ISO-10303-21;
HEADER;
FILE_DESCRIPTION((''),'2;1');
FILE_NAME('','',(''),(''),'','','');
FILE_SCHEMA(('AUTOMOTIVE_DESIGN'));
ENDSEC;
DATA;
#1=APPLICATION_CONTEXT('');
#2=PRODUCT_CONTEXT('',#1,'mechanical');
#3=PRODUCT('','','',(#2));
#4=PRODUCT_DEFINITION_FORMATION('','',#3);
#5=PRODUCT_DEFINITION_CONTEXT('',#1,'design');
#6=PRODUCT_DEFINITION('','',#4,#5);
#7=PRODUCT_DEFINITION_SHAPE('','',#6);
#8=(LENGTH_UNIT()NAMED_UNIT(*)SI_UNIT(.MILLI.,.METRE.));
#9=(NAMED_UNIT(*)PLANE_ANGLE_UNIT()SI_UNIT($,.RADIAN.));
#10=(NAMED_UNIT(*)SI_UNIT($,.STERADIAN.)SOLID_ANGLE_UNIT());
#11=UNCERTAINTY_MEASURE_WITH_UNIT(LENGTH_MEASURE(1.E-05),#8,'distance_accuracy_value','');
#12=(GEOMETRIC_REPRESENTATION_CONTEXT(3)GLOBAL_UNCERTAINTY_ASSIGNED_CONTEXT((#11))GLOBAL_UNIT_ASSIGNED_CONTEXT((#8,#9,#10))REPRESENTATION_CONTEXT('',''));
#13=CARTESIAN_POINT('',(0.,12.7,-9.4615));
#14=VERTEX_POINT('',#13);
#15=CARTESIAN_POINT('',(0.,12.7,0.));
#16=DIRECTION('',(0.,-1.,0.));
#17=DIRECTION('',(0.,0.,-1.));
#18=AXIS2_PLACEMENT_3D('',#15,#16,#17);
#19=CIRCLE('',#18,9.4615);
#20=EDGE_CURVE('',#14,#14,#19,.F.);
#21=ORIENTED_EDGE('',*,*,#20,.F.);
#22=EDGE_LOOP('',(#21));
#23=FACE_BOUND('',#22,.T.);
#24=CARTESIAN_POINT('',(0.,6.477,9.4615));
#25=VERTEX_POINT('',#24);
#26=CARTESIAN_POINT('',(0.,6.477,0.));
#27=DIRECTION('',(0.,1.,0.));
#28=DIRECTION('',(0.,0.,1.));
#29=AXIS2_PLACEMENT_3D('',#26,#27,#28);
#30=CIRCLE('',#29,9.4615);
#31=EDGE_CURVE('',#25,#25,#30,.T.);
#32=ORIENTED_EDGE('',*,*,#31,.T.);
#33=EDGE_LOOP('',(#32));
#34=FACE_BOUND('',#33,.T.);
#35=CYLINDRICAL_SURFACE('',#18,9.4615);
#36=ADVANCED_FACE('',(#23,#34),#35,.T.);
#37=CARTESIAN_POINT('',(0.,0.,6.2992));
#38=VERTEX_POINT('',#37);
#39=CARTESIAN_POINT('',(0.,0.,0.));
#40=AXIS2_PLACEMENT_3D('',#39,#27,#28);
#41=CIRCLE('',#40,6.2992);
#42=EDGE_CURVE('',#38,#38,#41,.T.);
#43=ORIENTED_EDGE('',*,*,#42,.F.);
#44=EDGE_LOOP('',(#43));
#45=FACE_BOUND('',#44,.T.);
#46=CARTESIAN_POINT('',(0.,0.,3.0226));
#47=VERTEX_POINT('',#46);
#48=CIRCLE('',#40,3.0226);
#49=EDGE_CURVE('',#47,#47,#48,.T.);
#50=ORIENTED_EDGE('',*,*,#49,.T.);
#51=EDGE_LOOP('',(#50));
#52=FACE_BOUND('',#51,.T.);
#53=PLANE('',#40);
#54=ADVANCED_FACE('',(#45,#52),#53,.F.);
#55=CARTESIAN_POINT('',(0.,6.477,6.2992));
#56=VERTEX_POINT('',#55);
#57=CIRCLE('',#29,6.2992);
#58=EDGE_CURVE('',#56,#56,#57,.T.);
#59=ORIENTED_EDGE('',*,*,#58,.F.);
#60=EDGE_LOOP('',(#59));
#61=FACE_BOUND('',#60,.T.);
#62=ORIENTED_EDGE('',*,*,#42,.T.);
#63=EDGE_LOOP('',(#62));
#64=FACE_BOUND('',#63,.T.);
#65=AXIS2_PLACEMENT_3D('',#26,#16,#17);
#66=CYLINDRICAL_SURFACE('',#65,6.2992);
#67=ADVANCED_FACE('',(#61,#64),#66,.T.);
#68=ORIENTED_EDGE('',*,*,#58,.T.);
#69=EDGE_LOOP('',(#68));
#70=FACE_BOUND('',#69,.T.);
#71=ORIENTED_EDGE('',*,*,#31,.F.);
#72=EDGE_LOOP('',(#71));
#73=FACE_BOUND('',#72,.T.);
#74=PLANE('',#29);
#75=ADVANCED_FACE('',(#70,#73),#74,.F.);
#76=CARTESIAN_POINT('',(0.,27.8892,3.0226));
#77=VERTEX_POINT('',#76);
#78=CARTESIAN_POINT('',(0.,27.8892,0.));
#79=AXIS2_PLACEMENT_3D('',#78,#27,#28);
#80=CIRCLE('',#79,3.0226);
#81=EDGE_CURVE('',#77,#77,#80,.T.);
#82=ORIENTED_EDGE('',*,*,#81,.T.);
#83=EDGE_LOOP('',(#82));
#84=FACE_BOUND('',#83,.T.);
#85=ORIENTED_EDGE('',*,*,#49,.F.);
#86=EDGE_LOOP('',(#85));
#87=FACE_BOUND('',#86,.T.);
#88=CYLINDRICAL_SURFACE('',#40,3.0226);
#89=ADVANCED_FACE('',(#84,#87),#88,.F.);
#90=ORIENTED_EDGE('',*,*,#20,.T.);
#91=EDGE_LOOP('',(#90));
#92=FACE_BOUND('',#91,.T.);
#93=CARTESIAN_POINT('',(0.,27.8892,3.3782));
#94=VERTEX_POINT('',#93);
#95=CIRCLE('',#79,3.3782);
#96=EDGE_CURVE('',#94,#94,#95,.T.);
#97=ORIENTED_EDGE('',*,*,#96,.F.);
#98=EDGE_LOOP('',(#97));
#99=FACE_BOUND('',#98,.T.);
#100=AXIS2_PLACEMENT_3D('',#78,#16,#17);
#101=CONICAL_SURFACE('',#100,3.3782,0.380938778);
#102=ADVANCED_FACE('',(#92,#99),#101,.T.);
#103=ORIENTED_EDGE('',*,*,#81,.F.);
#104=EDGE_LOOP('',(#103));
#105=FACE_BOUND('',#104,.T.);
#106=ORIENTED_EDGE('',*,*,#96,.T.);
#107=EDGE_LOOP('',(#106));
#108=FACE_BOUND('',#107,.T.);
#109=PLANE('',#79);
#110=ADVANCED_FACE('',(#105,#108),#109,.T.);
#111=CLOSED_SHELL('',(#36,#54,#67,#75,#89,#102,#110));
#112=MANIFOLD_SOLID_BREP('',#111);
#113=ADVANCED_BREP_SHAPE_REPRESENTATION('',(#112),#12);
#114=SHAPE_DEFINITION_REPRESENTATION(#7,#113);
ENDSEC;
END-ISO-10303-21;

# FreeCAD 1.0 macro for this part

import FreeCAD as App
import Part
import Sketcher
from FreeCAD import Vector
Q = App.Units.Quantity

doc = App.newDocument("Part")
body = doc.addObject("PartDesign::Body", "Body")

# Sketch on XZ plane
sketch1 = body.newObject("Sketcher::SketchObject", "Sketch")
sketch1.AttachmentSupport = (doc.getObject("XZ_Plane"), [""])
sketch1.MapMode = "FlatFace"
sketch1.addGeometry(Part.Circle(Vector(0, 0, 0), Vector(0, 0, 1), 6), False)
sketch1.addConstraint([
    Sketcher.Constraint("Coincident", 0, 3, -1, 1),
    Sketcher.Constraint("Diameter", 0, Q("0.496 in")),
])
pad1 = body.newObject("PartDesign::Pad", "Pad")
pad1.Profile = sketch1
pad1.Length = Q("0.255 in")
pad1.Reversed = True

# Sketch on XZ plane
sketch2 = body.newObject("Sketcher::SketchObject", "Sketch001")
sketch2.AttachmentSupport = (doc.getObject("XZ_Plane"), [""])
sketch2.MapMode = "FlatFace"
sketch2.AttachmentOffset = App.Placement(Vector(0, 0, -0.255 * 25.4), App.Rotation())
sketch2.addGeometry(Part.Circle(Vector(0, 0, 0), Vector(0, 0, 1), 9), False)
sketch2.addConstraint([
    Sketcher.Constraint("Coincident", 0, 3, -1, 1),
    Sketcher.Constraint("Diameter", 0, Q("0.745 in")),
])
pad2 = body.newObject("PartDesign::Pad", "Pad001")
pad2.Profile = sketch2
pad2.Length = Q("0.245 in")
pad2.Reversed = True

# Sketch on XZ plane
sketch3 = body.newObject("Sketcher::SketchObject", "Sketch002")
sketch3.AttachmentSupport = (doc.getObject("XZ_Plane"), [""])
sketch3.MapMode = "FlatFace"
sketch3.AttachmentOffset = App.Placement(Vector(0, 0, -0.5 * 25.4), App.Rotation())
sketch3.addGeometry(Part.Circle(Vector(0, 0, 0), Vector(0, 0, 1), 9), False)
sketch3.addConstraint([
    Sketcher.Constraint("Coincident", 0, 3, -1, 1),
    Sketcher.Constraint("Diameter", 0, Q("0.745 in")),
])

# Sketch on XZ plane
sketch4 = body.newObject("Sketcher::SketchObject", "Sketch003")
sketch4.AttachmentSupport = (doc.getObject("XZ_Plane"), [""])
sketch4.MapMode = "FlatFace"
sketch4.AttachmentOffset = App.Placement(Vector(0, 0, -1.098 * 25.4), App.Rotation())
sketch4.addGeometry(Part.Circle(Vector(0, 0, 0), Vector(0, 0, 1), 3.4), False)
sketch4.addConstraint([
    Sketcher.Constraint("Coincident", 0, 3, -1, 1),
    Sketcher.Constraint("Diameter", 0, Q("0.266 in")),
])

additiveloft = body.newObject("PartDesign::AdditiveLoft", "AdditiveLoft")
additiveloft.Profile = sketch3
additiveloft.Sections = [sketch4]

# Sketch on XZ plane
sketch5 = body.newObject("Sketcher::SketchObject", "Sketch004")
sketch5.AttachmentSupport = (doc.getObject("XZ_Plane"), [""])
sketch5.MapMode = "FlatFace"
sketch5.AttachmentOffset = App.Placement(Vector(0, 0, -1.098 * 25.4), App.Rotation())
sketch5.addGeometry(Part.Circle(Vector(0, 0, 0), Vector(0, 0, 1), 3), False)
sketch5.addConstraint([
    Sketcher.Constraint("Coincident", 0, 3, -1, 1),
    Sketcher.Constraint("Diameter", 0, Q("0.238 in")),
])
pocket1 = body.newObject("PartDesign::Pocket", "Pocket")
pocket1.Profile = sketch5
pocket1.Type = "ThroughAll"
pocket1.Reversed = True

doc.recompute()
